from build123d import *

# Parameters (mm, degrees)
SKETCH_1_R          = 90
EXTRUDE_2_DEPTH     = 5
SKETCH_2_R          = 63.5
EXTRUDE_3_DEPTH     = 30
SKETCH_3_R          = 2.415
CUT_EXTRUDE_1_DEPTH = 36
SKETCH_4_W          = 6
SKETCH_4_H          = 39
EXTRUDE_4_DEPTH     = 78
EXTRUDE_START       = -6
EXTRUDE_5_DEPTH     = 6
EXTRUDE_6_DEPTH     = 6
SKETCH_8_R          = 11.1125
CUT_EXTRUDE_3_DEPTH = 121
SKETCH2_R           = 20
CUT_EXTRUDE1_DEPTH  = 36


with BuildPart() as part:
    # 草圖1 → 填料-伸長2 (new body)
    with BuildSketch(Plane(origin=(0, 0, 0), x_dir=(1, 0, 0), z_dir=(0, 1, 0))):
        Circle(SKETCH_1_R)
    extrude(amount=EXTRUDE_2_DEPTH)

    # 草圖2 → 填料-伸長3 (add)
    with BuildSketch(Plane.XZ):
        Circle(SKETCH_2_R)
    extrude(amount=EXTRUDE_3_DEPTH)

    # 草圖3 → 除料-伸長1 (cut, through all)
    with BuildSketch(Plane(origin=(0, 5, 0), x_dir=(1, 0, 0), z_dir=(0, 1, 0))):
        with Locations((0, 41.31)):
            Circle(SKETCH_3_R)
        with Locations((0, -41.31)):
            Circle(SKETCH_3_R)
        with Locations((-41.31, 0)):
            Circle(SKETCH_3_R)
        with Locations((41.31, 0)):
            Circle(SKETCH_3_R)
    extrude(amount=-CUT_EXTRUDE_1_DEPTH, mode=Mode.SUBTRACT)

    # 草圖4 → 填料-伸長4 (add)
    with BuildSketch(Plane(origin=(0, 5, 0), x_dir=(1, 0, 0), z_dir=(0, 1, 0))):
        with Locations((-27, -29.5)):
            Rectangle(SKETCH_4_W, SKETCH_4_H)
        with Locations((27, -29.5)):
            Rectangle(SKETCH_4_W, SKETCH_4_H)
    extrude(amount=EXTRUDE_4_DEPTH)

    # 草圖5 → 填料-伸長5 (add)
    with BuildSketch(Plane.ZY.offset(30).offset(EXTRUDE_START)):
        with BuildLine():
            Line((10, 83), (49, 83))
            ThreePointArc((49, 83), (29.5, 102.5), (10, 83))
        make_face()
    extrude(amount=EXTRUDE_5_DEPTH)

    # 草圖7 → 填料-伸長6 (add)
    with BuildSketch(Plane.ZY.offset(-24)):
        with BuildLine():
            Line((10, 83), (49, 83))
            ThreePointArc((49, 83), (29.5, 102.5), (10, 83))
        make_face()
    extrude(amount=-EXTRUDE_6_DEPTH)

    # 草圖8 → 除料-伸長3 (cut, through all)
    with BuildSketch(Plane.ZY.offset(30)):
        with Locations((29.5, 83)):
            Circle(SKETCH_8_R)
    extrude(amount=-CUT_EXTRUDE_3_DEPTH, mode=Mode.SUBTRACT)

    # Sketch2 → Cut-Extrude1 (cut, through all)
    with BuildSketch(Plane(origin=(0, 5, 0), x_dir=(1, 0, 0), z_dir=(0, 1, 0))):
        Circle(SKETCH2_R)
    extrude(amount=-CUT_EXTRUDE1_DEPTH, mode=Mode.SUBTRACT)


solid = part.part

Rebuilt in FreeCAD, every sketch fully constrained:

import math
import FreeCAD as App
import Part
import Sketcher
from FreeCAD import Vector


def add_polygon(sketch, points):
    """Adds a closed chain of lines whose ends are joined by coincident constraints."""
    first, n = sketch.GeometryCount, len(points)
    for a, b in zip(points, points[1:] + points[:1]):
        sketch.addGeometry(Part.LineSegment(App.Vector(*a, 0), App.Vector(*b, 0)), False)
    for i in range(n):
        sketch.addConstraint(Sketcher.Constraint("Coincident", first + i, 2, first + (i + 1) % n, 1))

doc = App.newDocument("Part")
body = doc.addObject("PartDesign::Body", "Body")

# Sketch on XZ plane
sketch1 = doc.addObject("Sketcher::SketchObject", "Sketch")
body.addObject(sketch1)
sketch1.AttachmentSupport = (doc.XZ_Plane, [""])
sketch1.MapMode = "FlatFace"
sketch1.addGeometry(Part.Circle(Vector(0, 0, 0), Vector(0, 0, 1), 90), False)
sketch1.addConstraint([
    Sketcher.Constraint("Coincident", 0, 3, -1, 1),
    Sketcher.Constraint("Diameter", 0, 180.0),
])
pad1 = doc.addObject("PartDesign::Pad", "Pad")
body.addObject(pad1)
pad1.Profile = sketch1
pad1.Length = 5
pad1.Reversed = True

# Sketch on XZ plane
sketch2 = doc.addObject("Sketcher::SketchObject", "Sketch001")
body.addObject(sketch2)
sketch2.AttachmentSupport = (doc.XZ_Plane, [""])
sketch2.MapMode = "FlatFace"
sketch2.addGeometry(Part.Circle(Vector(0, 0, 0), Vector(0, 0, 1), 64), False)
sketch2.addConstraint([
    Sketcher.Constraint("Coincident", 0, 3, -1, 1),
    Sketcher.Constraint("Diameter", 0, 127.0),
])
pad2 = doc.addObject("PartDesign::Pad", "Pad001")
body.addObject(pad2)
pad2.Profile = sketch2
pad2.Length = 30

# Sketch on XZ plane
sketch3 = doc.addObject("Sketcher::SketchObject", "Sketch002")
body.addObject(sketch3)
sketch3.AttachmentSupport = (doc.XZ_Plane, [""])
sketch3.MapMode = "FlatFace"
sketch3.AttachmentOffset = App.Placement(Vector(0, 0, -5), App.Rotation())
sketch3.addGeometry([
    Part.Circle(Vector(0, -41.3, 0), Vector(0, 0, 1), 2.4),
    Part.Circle(Vector(0, 41.3, 0), Vector(0, 0, 1), 2.4),
    Part.Circle(Vector(-41.3, 0, 0), Vector(0, 0, 1), 2.4),
    Part.Circle(Vector(41.3, 0, 0), Vector(0, 0, 1), 2.4),
], False)
sketch3.addConstraint([
    Sketcher.Constraint("Equal", 0, 1),
    Sketcher.Constraint("Equal", 1, 2),
    Sketcher.Constraint("Equal", 2, 3),
    Sketcher.Constraint("Symmetric", 0, 3, 1, 3, -1, 1),
    Sketcher.Constraint("Symmetric", 2, 3, 3, 3, -1, 1),
    Sketcher.Constraint("PointOnObject", 0, 3, -2),
    Sketcher.Constraint("PointOnObject", 2, 3, -1),
    Sketcher.Constraint("Diameter", 0, 4.83),
    Sketcher.Constraint("DistanceY", 0, 3, -1, 1, 41.31),
    Sketcher.Constraint("DistanceX", 2, 3, -1, 1, 41.31),
])
pocket1 = doc.addObject("PartDesign::Pocket", "Pocket")
body.addObject(pocket1)
pocket1.Profile = sketch3
pocket1.Type = "ThroughAll"
pocket1.Reversed = True

# Sketch on XZ plane
sketch4 = doc.addObject("Sketcher::SketchObject", "Sketch003")
body.addObject(sketch4)
sketch4.AttachmentSupport = (doc.XZ_Plane, [""])
sketch4.MapMode = "FlatFace"
sketch4.AttachmentOffset = App.Placement(Vector(0, 0, -5), App.Rotation())
add_polygon(sketch4, [(-30, 10), (-30, 49), (-24, 49), (-24, 10)])  # lines 0-3
add_polygon(sketch4, [(24, 10), (24, 49), (30, 49), (30, 10)])  # lines 4-7
sketch4.addConstraint([
    Sketcher.Constraint("Vertical", 0),
    Sketcher.Constraint("Horizontal", 1),
    Sketcher.Constraint("Vertical", 2),
    Sketcher.Constraint("Horizontal", 3),
    Sketcher.Constraint("Vertical", 4),
    Sketcher.Constraint("Horizontal", 5),
    Sketcher.Constraint("Vertical", 6),
    Sketcher.Constraint("Horizontal", 7),
    Sketcher.Constraint("Symmetric", 1, 2, 4, 2, -2),
    Sketcher.Constraint("Symmetric", 3, 2, 6, 2, -2),
    Sketcher.Constraint("DistanceX", 1, 1, 1, 2, 6.0),
    Sketcher.Constraint("DistanceY", 0, 1, 0, 2, 39.0),
    Sketcher.Constraint("DistanceX", 0, 2, -1, 1, 30.0),
    Sketcher.Constraint("DistanceY", -1, 1, 0, 2, 49.0),
])
pad3 = doc.addObject("PartDesign::Pad", "Pad002")
body.addObject(pad3)
pad3.Profile = sketch4
pad3.Length = 78
pad3.Reversed = True

# Sketch on YZ plane
sketch5 = doc.addObject("Sketcher::SketchObject", "Sketch004")
body.addObject(sketch5)
sketch5.AttachmentSupport = (doc.YZ_Plane, [""])
sketch5.MapMode = "FlatFace"
sketch5.AttachmentOffset = App.Placement(Vector(0, 0, -24), App.Rotation())
sketch5.addGeometry([
    Part.LineSegment(Vector(83, 10, 0), Vector(83, 49, 0)),
    Part.ArcOfCircle(Part.Circle(Vector(83, 30, 0), Vector(0, 0, 1), 20), math.radians(-90), math.radians(90)),
], False)
sketch5.addConstraint([
    Sketcher.Constraint("Coincident", 0, 1, 1, 1),
    Sketcher.Constraint("Coincident", 1, 2, 0, 2),
    Sketcher.Constraint("Vertical", 0),
    Sketcher.Constraint("Vertical", 1, 3, 0, 1),
    Sketcher.Constraint("Radius", 1, 19.5),
    Sketcher.Constraint("DistanceX", -1, 1, 1, 3, 83.0),
    Sketcher.Constraint("DistanceY", -1, 1, 0, 1, 10.0),
])
pad4 = doc.addObject("PartDesign::Pad", "Pad003")
body.addObject(pad4)
pad4.Profile = sketch5
pad4.Length = 6
pad4.Reversed = True

# Sketch on YZ plane
sketch6 = doc.addObject("Sketcher::SketchObject", "Sketch005")
body.addObject(sketch6)
sketch6.AttachmentSupport = (doc.YZ_Plane, [""])
sketch6.MapMode = "FlatFace"
sketch6.AttachmentOffset = App.Placement(Vector(0, 0, 24), App.Rotation())
sketch6.addGeometry([
    Part.LineSegment(Vector(83, 10, 0), Vector(83, 49, 0)),
    Part.ArcOfCircle(Part.Circle(Vector(83, 30, 0), Vector(0, 0, 1), 20), math.radians(-90), math.radians(90)),
], False)
sketch6.addConstraint([
    Sketcher.Constraint("Coincident", 0, 1, 1, 1),
    Sketcher.Constraint("Coincident", 1, 2, 0, 2),
    Sketcher.Constraint("Vertical", 0),
    Sketcher.Constraint("Vertical", 1, 3, 0, 1),
    Sketcher.Constraint("Radius", 1, 19.5),
    Sketcher.Constraint("DistanceX", -1, 1, 1, 3, 83.0),
    Sketcher.Constraint("DistanceY", -1, 1, 0, 1, 10.0),
])
pad5 = doc.addObject("PartDesign::Pad", "Pad004")
body.addObject(pad5)
pad5.Profile = sketch6
pad5.Length = 6

# Sketch on YZ plane
sketch7 = doc.addObject("Sketcher::SketchObject", "Sketch006")
body.addObject(sketch7)
sketch7.AttachmentSupport = (doc.YZ_Plane, [""])
sketch7.MapMode = "FlatFace"
sketch7.AttachmentOffset = App.Placement(Vector(0, 0, -30), App.Rotation())
sketch7.addGeometry(Part.Circle(Vector(83, 30, 0), Vector(0, 0, 1), 11), False)
sketch7.addConstraint([
    Sketcher.Constraint("Diameter", 0, 22.225),
    Sketcher.Constraint("DistanceX", -1, 1, 0, 3, 83.0),
    Sketcher.Constraint("DistanceY", -1, 1, 0, 3, 29.5),
])
pocket2 = doc.addObject("PartDesign::Pocket", "Pocket001")
body.addObject(pocket2)
pocket2.Profile = sketch7
pocket2.Type = "ThroughAll"
pocket2.Reversed = True

# Sketch on XZ plane
sketch8 = doc.addObject("Sketcher::SketchObject", "Sketch007")
body.addObject(sketch8)
sketch8.AttachmentSupport = (doc.XZ_Plane, [""])
sketch8.MapMode = "FlatFace"
sketch8.AttachmentOffset = App.Placement(Vector(0, 0, -5), App.Rotation())
sketch8.addGeometry(Part.Circle(Vector(0, 0, 0), Vector(0, 0, 1), 20), False)
sketch8.addConstraint([
    Sketcher.Constraint("Coincident", 0, 3, -1, 1),
    Sketcher.Constraint("Diameter", 0, 40.0),
])
pocket3 = doc.addObject("PartDesign::Pocket", "Pocket002")
body.addObject(pocket3)
pocket3.Profile = sketch8
pocket3.Type = "ThroughAll"
pocket3.Reversed = True

doc.recompute()
